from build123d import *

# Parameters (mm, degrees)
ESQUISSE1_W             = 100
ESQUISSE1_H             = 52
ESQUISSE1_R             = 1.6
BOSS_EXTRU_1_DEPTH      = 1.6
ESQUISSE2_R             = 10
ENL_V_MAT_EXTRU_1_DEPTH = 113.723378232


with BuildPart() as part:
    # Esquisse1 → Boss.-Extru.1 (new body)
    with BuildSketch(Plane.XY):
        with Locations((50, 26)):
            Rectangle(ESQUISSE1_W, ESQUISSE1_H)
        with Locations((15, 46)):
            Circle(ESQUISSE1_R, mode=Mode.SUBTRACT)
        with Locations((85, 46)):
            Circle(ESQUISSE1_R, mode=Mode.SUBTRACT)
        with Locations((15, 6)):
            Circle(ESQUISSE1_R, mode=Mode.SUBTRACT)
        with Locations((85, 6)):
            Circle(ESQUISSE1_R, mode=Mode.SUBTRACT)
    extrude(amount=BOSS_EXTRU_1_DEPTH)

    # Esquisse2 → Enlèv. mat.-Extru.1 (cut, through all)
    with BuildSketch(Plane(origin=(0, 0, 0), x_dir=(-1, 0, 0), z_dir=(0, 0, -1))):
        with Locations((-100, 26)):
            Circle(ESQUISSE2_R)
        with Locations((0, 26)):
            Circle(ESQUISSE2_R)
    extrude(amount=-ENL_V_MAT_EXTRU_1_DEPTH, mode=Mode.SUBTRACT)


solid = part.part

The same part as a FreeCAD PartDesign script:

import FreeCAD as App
import Part
import Sketcher
from FreeCAD import Vector


def add_polygon(sketch, points):
    """Adds a closed chain of lines whose ends are joined by coincident constraints."""
    first, n = sketch.GeometryCount, len(points)
    for a, b in zip(points, points[1:] + points[:1]):
        sketch.addGeometry(Part.LineSegment(App.Vector(*a, 0), App.Vector(*b, 0)), False)
    for i in range(n):
        sketch.addConstraint(Sketcher.Constraint("Coincident", first + i, 2, first + (i + 1) % n, 1))

doc = App.newDocument("Part")
body = doc.addObject("PartDesign::Body", "Body")

# Sketch on XY plane
sketch1 = body.newObject("Sketcher::SketchObject", "Sketch")
sketch1.AttachmentSupport = (doc.getObject("XY_Plane"), [""])
sketch1.MapMode = "FlatFace"
add_polygon(sketch1, [(0, 52), (0, 0), (100, 0), (100, 52)])  # lines 0-3
sketch1.addGeometry(Part.Circle(Vector(15, 6, 0), Vector(0, 0, 1), 1.6), False)  # 4
sketch1.addGeometry(Part.Circle(Vector(85, 6, 0), Vector(0, 0, 1), 1.6), False)  # 5
sketch1.addGeometry(Part.Circle(Vector(15, 46, 0), Vector(0, 0, 1), 1.6), False)  # 6
sketch1.addGeometry(Part.Circle(Vector(85, 46, 0), Vector(0, 0, 1), 1.6), False)  # 7
sketch1.addConstraint(Sketcher.Constraint("Vertical", 0))
sketch1.addConstraint(Sketcher.Constraint("Horizontal", 1))
sketch1.addConstraint(Sketcher.Constraint("Vertical", 2))
sketch1.addConstraint(Sketcher.Constraint("Horizontal", 3))
sketch1.addConstraint(Sketcher.Constraint("Coincident", 0, 2, -1, 1))
sketch1.addConstraint(Sketcher.Constraint("Equal", 4, 5))
sketch1.addConstraint(Sketcher.Constraint("Equal", 5, 6))
sketch1.addConstraint(Sketcher.Constraint("Equal", 6, 7))
sketch1.addConstraint(Sketcher.Constraint("Horizontal", 4, 3, 5, 3))
sketch1.addConstraint(Sketcher.Constraint("Horizontal", 6, 3, 7, 3))
sketch1.addConstraint(Sketcher.Constraint("Vertical", 4, 3, 6, 3))
sketch1.addConstraint(Sketcher.Constraint("Vertical", 5, 3, 7, 3))
sketch1.addConstraint(Sketcher.Constraint("Diameter", 4, 3.2))
sketch1.addConstraint(Sketcher.Constraint("DistanceX", 1, 1, 1, 2, 100.0))
sketch1.addConstraint(Sketcher.Constraint("DistanceY", 0, 2, 0, 1, 52.0))
sketch1.addConstraint(Sketcher.Constraint("DistanceX", -1, 1, 4, 3, 15.0))
sketch1.addConstraint(Sketcher.Constraint("DistanceY", -1, 1, 4, 3, 6.0))
sketch1.addConstraint(Sketcher.Constraint("DistanceX", -1, 1, 5, 3, 85.0))
sketch1.addConstraint(Sketcher.Constraint("DistanceY", -1, 1, 6, 3, 46.0))
pad1 = body.newObject("PartDesign::Pad", "Pad")
pad1.Profile = sketch1
pad1.Length = 1.6

# Sketch on XY plane
sketch2 = body.newObject("Sketcher::SketchObject", "Sketch001")
sketch2.AttachmentSupport = (doc.getObject("XY_Plane"), [""])
sketch2.MapMode = "FlatFace"
sketch2.addGeometry(Part.Circle(Vector(100, 26, 0), Vector(0, 0, 1), 10), False)
sketch2.addGeometry(Part.Circle(Vector(0, 26, 0), Vector(0, 0, 1), 10), False)
sketch2.addConstraint(Sketcher.Constraint("Equal", 0, 1))
sketch2.addConstraint(Sketcher.Constraint("PointOnObject", 1, 3, -2))
sketch2.addConstraint(Sketcher.Constraint("Horizontal", 0, 3, 1, 3))
sketch2.addConstraint(Sketcher.Constraint("Diameter", 0, 20.0))
sketch2.addConstraint(Sketcher.Constraint("DistanceX", -1, 1, 0, 3, 100.0))
sketch2.addConstraint(Sketcher.Constraint("DistanceY", -1, 1, 0, 3, 26.0))
pocket1 = body.newObject("PartDesign::Pocket", "Pocket")
pocket1.Profile = sketch2
pocket1.Type = "ThroughAll"
pocket1.Reversed = True

doc.recompute()
